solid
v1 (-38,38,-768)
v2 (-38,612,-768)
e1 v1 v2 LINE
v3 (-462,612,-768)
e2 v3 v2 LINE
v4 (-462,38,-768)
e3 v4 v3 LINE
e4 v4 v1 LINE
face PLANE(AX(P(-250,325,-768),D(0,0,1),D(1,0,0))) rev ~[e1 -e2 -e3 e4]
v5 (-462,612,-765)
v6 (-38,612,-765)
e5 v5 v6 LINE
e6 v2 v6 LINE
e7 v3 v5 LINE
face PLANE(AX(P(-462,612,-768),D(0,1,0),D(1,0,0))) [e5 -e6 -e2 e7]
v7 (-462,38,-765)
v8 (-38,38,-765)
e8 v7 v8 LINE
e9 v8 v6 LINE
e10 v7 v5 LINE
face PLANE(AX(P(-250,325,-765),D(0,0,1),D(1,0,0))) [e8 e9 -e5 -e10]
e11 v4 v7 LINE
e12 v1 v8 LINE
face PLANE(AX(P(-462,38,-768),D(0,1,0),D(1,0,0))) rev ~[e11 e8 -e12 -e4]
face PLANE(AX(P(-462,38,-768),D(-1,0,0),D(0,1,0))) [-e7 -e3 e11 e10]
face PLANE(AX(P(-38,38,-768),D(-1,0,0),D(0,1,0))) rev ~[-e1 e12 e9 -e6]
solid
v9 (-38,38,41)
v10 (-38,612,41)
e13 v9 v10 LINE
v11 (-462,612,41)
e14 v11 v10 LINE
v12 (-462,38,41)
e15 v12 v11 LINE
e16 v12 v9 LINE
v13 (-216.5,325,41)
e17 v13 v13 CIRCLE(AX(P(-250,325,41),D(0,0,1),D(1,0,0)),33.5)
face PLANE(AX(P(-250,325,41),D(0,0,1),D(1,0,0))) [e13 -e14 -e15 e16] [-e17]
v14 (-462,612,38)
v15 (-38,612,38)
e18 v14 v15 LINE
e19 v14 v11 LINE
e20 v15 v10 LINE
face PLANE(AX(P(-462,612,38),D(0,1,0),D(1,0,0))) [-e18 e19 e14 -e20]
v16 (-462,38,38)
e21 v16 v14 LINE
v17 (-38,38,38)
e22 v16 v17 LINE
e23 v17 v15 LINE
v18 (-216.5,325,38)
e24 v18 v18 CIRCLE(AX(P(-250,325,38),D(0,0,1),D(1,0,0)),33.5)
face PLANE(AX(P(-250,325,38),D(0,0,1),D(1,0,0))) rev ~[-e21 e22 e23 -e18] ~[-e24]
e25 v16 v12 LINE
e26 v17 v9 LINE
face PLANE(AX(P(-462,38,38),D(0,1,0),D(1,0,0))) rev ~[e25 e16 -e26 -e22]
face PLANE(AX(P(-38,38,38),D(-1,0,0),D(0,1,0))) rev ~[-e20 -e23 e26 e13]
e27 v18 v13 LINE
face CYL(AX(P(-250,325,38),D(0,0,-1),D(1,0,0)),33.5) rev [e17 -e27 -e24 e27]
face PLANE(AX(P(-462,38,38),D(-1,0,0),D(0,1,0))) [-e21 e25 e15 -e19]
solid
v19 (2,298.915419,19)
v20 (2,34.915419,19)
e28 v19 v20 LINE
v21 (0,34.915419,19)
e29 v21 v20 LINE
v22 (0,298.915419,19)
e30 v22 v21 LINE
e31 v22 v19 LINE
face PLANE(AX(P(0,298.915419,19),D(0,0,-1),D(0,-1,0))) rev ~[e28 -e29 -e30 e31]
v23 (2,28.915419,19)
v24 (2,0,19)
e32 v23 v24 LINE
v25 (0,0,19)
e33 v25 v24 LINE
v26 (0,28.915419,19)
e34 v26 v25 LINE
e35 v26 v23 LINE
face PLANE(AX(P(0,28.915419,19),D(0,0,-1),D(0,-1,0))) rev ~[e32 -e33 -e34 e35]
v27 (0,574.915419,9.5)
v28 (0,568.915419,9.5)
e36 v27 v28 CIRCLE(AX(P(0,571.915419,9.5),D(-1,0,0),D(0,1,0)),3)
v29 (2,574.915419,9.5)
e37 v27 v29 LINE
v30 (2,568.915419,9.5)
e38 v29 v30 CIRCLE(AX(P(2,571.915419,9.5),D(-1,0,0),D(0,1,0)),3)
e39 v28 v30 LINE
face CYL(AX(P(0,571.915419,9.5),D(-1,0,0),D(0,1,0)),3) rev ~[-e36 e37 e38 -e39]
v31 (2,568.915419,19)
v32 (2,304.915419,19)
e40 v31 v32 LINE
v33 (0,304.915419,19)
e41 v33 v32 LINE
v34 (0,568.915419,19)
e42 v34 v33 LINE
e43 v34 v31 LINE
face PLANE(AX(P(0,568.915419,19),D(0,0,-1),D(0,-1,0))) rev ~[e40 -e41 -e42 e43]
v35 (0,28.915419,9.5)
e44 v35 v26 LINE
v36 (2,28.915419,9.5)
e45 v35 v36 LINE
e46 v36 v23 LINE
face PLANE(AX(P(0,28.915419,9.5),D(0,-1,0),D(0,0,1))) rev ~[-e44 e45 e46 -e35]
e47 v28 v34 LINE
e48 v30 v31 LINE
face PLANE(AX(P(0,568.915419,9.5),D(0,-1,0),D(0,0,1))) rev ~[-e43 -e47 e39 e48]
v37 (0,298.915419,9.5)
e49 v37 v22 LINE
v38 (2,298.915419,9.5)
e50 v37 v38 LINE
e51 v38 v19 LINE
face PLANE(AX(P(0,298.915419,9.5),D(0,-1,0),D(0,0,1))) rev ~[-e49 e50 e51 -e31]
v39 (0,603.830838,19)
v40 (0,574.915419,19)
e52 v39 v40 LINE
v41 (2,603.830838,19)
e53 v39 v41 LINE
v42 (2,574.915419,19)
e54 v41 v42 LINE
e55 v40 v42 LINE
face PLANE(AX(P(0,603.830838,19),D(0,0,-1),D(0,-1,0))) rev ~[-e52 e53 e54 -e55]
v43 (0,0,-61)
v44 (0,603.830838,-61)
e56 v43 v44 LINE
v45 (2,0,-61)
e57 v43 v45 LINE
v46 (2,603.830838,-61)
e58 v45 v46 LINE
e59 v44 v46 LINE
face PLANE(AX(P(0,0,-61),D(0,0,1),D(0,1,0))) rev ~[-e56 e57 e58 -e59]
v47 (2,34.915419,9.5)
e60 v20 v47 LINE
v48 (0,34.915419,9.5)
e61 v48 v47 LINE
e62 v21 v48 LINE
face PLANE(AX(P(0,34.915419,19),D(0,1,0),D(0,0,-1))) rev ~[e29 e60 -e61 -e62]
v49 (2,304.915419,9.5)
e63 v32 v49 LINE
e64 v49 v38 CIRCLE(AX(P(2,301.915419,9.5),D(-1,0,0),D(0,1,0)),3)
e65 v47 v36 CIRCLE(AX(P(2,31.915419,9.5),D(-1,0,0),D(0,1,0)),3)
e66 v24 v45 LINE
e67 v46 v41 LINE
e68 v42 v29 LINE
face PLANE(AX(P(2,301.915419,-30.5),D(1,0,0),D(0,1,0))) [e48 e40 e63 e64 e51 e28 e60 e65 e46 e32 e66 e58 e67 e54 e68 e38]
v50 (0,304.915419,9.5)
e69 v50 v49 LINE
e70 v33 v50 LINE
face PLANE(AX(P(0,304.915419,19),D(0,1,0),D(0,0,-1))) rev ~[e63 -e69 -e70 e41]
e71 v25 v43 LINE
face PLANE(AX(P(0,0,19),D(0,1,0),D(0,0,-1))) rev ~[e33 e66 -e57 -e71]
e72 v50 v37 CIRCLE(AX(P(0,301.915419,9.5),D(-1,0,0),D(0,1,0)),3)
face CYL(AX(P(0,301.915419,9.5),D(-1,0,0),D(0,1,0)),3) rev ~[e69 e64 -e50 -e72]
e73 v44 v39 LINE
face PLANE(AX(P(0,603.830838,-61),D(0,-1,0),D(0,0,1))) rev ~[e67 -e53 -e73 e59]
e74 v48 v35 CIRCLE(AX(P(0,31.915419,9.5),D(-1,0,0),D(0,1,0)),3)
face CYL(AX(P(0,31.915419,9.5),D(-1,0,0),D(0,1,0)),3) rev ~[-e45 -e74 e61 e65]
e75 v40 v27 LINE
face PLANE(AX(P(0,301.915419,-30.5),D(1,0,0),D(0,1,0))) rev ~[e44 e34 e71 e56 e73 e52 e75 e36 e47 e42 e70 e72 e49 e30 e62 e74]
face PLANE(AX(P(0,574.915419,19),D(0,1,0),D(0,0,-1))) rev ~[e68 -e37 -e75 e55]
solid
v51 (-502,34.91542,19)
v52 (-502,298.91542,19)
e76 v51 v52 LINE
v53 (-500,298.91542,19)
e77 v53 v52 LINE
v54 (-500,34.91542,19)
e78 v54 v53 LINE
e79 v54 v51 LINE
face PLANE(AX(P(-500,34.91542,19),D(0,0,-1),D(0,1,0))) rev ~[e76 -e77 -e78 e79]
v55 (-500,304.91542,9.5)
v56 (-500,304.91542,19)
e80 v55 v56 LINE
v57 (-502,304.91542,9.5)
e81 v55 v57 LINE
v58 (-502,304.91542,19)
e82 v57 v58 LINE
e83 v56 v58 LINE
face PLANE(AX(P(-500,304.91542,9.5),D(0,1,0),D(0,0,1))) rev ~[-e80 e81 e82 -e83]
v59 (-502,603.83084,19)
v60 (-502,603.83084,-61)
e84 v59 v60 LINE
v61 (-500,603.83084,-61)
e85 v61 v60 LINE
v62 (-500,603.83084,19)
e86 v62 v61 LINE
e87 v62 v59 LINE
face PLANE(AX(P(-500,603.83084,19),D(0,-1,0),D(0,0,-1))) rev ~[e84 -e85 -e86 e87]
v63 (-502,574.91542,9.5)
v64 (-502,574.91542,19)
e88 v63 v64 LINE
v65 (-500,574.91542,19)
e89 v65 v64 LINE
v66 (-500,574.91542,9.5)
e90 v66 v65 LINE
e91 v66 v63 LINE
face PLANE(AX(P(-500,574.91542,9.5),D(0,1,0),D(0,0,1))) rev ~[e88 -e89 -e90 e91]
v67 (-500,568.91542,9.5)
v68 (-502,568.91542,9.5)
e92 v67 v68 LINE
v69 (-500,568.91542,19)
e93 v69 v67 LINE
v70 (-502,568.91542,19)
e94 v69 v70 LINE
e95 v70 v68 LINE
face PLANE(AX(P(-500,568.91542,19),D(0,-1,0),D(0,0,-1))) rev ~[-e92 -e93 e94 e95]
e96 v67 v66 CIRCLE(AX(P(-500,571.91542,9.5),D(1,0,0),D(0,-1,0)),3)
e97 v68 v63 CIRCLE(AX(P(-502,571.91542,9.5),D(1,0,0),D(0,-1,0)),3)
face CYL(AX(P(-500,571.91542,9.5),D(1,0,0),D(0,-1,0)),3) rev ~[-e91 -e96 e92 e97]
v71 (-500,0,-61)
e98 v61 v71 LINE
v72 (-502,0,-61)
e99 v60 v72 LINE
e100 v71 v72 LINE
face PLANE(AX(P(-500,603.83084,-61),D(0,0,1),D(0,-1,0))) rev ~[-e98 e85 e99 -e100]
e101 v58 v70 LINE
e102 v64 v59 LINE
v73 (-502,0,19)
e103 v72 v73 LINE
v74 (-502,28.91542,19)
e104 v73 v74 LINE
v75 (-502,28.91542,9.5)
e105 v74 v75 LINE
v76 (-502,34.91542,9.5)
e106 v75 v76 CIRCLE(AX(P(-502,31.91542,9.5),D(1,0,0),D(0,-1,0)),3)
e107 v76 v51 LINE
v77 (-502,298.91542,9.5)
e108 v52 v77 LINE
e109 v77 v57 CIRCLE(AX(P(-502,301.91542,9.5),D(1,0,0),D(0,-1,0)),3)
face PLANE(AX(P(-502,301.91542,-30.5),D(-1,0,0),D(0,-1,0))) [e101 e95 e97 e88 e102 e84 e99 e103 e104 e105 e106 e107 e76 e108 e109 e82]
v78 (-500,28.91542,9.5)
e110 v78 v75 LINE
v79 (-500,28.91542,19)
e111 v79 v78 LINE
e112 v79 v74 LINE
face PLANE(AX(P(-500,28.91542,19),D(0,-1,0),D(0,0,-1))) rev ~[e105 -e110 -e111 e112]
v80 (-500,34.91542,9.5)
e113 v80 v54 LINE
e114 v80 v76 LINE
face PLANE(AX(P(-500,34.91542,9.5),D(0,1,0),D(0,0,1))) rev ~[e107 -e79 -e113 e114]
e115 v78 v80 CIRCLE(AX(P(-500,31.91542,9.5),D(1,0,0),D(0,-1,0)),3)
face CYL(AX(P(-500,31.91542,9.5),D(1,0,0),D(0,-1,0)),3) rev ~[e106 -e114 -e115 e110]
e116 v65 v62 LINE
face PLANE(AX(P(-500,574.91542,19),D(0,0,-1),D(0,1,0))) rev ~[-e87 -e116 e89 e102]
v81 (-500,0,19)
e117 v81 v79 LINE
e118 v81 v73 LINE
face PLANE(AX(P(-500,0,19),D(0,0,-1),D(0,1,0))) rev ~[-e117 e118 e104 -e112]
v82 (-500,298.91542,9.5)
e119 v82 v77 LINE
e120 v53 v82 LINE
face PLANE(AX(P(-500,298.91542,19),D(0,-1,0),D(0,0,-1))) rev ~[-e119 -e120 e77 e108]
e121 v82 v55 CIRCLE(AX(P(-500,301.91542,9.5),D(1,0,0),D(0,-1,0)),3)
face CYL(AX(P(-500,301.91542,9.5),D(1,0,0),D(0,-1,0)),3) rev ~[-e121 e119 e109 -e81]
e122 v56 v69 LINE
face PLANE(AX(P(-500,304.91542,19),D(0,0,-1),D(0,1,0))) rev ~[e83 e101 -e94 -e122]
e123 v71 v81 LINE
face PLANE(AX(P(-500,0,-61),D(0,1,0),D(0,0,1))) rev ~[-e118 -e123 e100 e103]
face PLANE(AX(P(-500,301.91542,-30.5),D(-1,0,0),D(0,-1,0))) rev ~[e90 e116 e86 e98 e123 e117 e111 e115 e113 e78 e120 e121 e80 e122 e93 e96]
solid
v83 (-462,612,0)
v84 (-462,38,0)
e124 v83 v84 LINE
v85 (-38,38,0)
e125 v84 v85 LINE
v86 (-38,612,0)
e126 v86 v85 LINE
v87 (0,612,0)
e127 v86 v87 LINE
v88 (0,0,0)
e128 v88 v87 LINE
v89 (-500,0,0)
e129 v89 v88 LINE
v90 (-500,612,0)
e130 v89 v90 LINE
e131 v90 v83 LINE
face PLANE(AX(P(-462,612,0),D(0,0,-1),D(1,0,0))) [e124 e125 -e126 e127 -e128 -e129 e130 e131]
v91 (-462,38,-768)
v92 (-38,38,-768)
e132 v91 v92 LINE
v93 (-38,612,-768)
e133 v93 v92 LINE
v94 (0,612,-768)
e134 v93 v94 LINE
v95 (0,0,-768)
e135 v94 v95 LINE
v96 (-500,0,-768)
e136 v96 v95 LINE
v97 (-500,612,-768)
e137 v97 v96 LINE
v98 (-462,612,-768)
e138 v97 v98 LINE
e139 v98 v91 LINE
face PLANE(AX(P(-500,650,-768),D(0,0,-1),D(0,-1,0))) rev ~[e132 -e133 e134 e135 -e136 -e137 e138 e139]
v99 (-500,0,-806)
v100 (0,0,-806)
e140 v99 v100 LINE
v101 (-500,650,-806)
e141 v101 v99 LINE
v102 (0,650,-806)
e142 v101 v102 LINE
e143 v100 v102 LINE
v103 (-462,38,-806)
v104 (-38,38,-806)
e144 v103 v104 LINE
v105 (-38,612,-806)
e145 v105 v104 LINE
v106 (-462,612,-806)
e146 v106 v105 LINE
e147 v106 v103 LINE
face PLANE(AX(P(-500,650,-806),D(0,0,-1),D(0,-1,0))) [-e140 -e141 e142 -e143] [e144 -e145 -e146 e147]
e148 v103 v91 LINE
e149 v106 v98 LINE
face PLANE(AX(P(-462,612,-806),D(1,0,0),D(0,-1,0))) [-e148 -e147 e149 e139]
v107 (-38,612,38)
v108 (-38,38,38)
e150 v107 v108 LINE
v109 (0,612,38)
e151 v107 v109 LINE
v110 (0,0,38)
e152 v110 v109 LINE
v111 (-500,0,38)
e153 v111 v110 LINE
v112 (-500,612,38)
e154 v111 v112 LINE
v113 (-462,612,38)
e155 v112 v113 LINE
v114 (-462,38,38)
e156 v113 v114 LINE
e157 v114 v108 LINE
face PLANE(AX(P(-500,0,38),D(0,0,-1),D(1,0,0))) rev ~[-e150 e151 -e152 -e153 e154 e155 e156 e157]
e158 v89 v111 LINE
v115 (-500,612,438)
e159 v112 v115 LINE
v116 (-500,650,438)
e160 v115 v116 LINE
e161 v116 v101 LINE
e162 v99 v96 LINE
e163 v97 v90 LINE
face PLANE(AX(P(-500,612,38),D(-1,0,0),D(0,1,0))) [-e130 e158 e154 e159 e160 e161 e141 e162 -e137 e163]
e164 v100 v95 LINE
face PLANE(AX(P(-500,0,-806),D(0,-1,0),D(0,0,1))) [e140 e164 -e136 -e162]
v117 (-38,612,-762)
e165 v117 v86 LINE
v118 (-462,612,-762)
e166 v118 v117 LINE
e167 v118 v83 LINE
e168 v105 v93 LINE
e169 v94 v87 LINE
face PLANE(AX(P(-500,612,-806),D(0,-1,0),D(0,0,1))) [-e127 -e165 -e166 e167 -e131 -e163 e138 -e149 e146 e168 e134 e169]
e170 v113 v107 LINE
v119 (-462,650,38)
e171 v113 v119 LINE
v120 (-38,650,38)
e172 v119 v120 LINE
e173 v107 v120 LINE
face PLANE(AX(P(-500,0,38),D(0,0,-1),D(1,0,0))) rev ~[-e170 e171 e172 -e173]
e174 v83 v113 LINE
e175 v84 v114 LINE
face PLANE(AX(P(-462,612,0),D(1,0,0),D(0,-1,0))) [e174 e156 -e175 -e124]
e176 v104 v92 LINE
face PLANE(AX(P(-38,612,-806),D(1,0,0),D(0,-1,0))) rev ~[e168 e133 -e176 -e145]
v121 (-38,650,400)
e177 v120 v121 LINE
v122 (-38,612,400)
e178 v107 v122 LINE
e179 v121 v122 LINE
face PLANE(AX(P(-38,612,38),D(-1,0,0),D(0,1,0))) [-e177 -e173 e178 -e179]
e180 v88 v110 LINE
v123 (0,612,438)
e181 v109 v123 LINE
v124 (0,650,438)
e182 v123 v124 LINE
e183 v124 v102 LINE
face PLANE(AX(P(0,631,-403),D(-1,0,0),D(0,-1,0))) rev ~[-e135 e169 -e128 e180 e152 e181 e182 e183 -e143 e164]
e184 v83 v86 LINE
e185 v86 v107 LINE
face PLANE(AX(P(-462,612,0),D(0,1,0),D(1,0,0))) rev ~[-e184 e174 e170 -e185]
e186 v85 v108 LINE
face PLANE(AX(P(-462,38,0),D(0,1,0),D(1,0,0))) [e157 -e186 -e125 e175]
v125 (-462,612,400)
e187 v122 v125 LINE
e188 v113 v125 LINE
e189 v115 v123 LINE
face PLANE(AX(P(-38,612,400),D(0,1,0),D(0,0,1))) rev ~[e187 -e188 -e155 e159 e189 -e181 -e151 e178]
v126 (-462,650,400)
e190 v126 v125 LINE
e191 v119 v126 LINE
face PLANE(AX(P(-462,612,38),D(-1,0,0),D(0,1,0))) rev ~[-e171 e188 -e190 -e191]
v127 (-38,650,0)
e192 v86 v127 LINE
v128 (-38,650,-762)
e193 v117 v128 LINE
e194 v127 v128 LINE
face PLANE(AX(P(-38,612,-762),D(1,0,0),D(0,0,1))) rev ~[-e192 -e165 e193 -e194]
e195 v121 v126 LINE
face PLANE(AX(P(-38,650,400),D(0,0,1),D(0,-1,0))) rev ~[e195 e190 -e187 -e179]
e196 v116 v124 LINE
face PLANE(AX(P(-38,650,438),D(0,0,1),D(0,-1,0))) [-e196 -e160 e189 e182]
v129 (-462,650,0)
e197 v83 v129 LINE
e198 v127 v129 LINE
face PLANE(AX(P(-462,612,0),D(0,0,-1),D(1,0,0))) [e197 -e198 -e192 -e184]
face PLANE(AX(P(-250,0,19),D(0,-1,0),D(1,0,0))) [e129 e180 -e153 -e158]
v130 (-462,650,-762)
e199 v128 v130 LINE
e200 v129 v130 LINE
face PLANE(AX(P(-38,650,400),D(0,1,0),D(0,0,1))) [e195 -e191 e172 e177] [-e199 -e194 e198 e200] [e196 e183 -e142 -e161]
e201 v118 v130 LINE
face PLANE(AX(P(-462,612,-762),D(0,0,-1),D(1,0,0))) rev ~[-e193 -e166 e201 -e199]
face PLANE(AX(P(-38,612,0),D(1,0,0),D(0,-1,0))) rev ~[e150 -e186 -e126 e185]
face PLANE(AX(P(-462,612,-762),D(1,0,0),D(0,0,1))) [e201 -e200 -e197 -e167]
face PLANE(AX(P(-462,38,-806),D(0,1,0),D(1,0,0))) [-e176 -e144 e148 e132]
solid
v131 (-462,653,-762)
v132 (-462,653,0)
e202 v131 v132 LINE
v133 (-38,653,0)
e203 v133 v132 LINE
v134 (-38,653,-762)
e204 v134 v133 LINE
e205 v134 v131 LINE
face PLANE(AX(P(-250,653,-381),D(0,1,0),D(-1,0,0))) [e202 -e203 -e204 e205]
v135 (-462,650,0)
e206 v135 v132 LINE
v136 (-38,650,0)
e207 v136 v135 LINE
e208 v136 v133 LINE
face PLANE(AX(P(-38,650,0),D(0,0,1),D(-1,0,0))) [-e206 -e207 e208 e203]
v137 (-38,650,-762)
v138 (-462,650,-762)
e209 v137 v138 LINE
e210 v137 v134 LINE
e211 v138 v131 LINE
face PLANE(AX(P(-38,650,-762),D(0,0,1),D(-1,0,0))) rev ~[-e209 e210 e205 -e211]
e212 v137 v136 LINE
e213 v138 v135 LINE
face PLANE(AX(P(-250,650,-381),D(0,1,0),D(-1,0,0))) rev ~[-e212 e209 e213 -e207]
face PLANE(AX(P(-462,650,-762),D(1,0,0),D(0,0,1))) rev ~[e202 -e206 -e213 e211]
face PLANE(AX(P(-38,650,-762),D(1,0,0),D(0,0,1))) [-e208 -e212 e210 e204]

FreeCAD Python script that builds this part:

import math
import FreeCAD as App
import Part
import Sketcher

doc = App.newDocument("Part")
body = doc.addObject("PartDesign::Body", "Body")

# Sketch on XZ plane
sketch1 = body.newObject("Sketcher::SketchObject", "Sketch")
sketch1.AttachmentSupport = (doc.getObject("XZ_Plane"), [""])
sketch1.MapMode = "FlatFace"
sketch1.addGeometry([
    Part.LineSegment(App.Vector(-500, 38, 0), App.Vector(-500, 0, 0)),
    Part.LineSegment(App.Vector(-500, 0, 0), App.Vector(0, 0, 0)),
    Part.LineSegment(App.Vector(0, 0, 0), App.Vector(0, 38, 0)),
    Part.LineSegment(App.Vector(0, 38, 0), App.Vector(-500, 38, 0)),
], False)
sketch1.addConstraint([
    Sketcher.Constraint("Coincident", 0, 2, 1, 1),
    Sketcher.Constraint("Coincident", 1, 2, 2, 1),
    Sketcher.Constraint("Coincident", 2, 2, 3, 1),
    Sketcher.Constraint("Coincident", 3, 2, 0, 1),
    Sketcher.Constraint("Vertical", 0),
    Sketcher.Constraint("Horizontal", 1),
    Sketcher.Constraint("Vertical", 2),
    Sketcher.Constraint("Horizontal", 3),
    Sketcher.Constraint("Coincident", 1, 2, -1, 1),
    Sketcher.Constraint("DistanceX", 1, 1, 1, 2, 500.0),
    Sketcher.Constraint("DistanceY", 0, 2, 0, 1, 38.0),
])
pad1 = body.newObject("PartDesign::Pad", "Pad")
pad1.Profile = sketch1
pad1.Length = 650
pad1.Reversed = True

# Sketch on YZ plane
sketch2 = body.newObject("Sketcher::SketchObject", "Sketch001")
sketch2.AttachmentSupport = (doc.getObject("YZ_Plane"), [""])
sketch2.MapMode = "FlatFace"
sketch2.AttachmentOffset = App.Placement(App.Vector(0, 0, -500), App.Rotation())
sketch2.addGeometry([
    Part.LineSegment(App.Vector(650, 0, 0), App.Vector(650, -806, 0)),
    Part.LineSegment(App.Vector(650, -806, 0), App.Vector(612, -806, 0)),
    Part.LineSegment(App.Vector(612, -806, 0), App.Vector(612, 0, 0)),
    Part.LineSegment(App.Vector(612, 0, 0), App.Vector(650, 0, 0)),
], False)
sketch2.addConstraint([
    Sketcher.Constraint("Coincident", 0, 2, 1, 1),
    Sketcher.Constraint("Coincident", 1, 2, 2, 1),
    Sketcher.Constraint("Coincident", 2, 2, 3, 1),
    Sketcher.Constraint("Coincident", 3, 2, 0, 1),
    Sketcher.Constraint("Vertical", 0),
    Sketcher.Constraint("Horizontal", 1),
    Sketcher.Constraint("Vertical", 2),
    Sketcher.Constraint("Horizontal", 3),
    Sketcher.Constraint("PointOnObject", 2, 2, -1),
    Sketcher.Constraint("DistanceX", 1, 2, 1, 1, 38.0),
    Sketcher.Constraint("DistanceY", 0, 2, 0, 1, 806.0),
    Sketcher.Constraint("DistanceX", -1, 1, 0, 2, 650.0),
])
pad2 = body.newObject("PartDesign::Pad", "Pad001")
pad2.Profile = sketch2
pad2.Length = 500

# Sketch on YZ plane
sketch3 = body.newObject("Sketcher::SketchObject", "Sketch002")
sketch3.AttachmentSupport = (doc.getObject("YZ_Plane"), [""])
sketch3.MapMode = "FlatFace"
sketch3.AttachmentOffset = App.Placement(App.Vector(0, 0, -500), App.Rotation())
sketch3.addGeometry([
    Part.LineSegment(App.Vector(650, -768, 0), App.Vector(650, -806, 0)),
    Part.LineSegment(App.Vector(650, -806, 0), App.Vector(0, -806, 0)),
    Part.LineSegment(App.Vector(0, -806, 0), App.Vector(0, -768, 0)),
    Part.LineSegment(App.Vector(0, -768, 0), App.Vector(650, -768, 0)),
], False)
sketch3.addConstraint([
    Sketcher.Constraint("Coincident", 0, 2, 1, 1),
    Sketcher.Constraint("Coincident", 1, 2, 2, 1),
    Sketcher.Constraint("Coincident", 2, 2, 3, 1),
    Sketcher.Constraint("Coincident", 3, 2, 0, 1),
    Sketcher.Constraint("Vertical", 0),
    Sketcher.Constraint("Horizontal", 1),
    Sketcher.Constraint("Vertical", 2),
    Sketcher.Constraint("Horizontal", 3),
    Sketcher.Constraint("PointOnObject", 1, 2, -2),
    Sketcher.Constraint("DistanceX", 1, 2, 1, 1, 650.0),
    Sketcher.Constraint("DistanceY", 0, 2, 0, 1, 38.0),
    Sketcher.Constraint("DistanceY", 0, 2, -1, 1, 806.0),
])
pad3 = body.newObject("PartDesign::Pad", "Pad002")
pad3.Profile = sketch3
pad3.Length = 500

# Sketch on XY plane
sketch4 = body.newObject("Sketcher::SketchObject", "Sketch003")
sketch4.AttachmentSupport = (doc.getObject("XY_Plane"), [""])
sketch4.MapMode = "FlatFace"
sketch4.AttachmentOffset = App.Placement(App.Vector(0, 0, 38), App.Rotation())
sketch4.addGeometry([
    Part.LineSegment(App.Vector(-500, 650, 0), App.Vector(-500, 612, 0)),  # 0
    Part.LineSegment(App.Vector(-500, 612, 0), App.Vector(-462, 612, 0)),  # 1
    Part.LineSegment(App.Vector(-462, 612, 0), App.Vector(-462, 650, 0)),  # 2
    Part.LineSegment(App.Vector(-462, 650, 0), App.Vector(-500, 650, 0)),  # 3
    Part.LineSegment(App.Vector(-38, 650, 0), App.Vector(-38, 612, 0)),  # 4
    Part.LineSegment(App.Vector(-38, 612, 0), App.Vector(0, 612, 0)),  # 5
    Part.LineSegment(App.Vector(0, 612, 0), App.Vector(0, 650, 0)),  # 6
    Part.LineSegment(App.Vector(0, 650, 0), App.Vector(-38, 650, 0)),  # 7
], False)
sketch4.addConstraint([
    Sketcher.Constraint("Coincident", 0, 2, 1, 1),
    Sketcher.Constraint("Coincident", 1, 2, 2, 1),
    Sketcher.Constraint("Coincident", 2, 2, 3, 1),
    Sketcher.Constraint("Coincident", 3, 2, 0, 1),
    Sketcher.Constraint("Coincident", 4, 2, 5, 1),
    Sketcher.Constraint("Coincident", 5, 2, 6, 1),
    Sketcher.Constraint("Coincident", 6, 2, 7, 1),
    Sketcher.Constraint("Coincident", 7, 2, 4, 1),
    Sketcher.Constraint("Vertical", 0),
    Sketcher.Constraint("Horizontal", 1),
    Sketcher.Constraint("Vertical", 2),
    Sketcher.Constraint("Horizontal", 3),
    Sketcher.Constraint("Vertical", 4),
    Sketcher.Constraint("Horizontal", 5),
    Sketcher.Constraint("Vertical", 6),
    Sketcher.Constraint("Horizontal", 7),
    Sketcher.Constraint("PointOnObject", 5, 2, -2),
    Sketcher.Constraint("Horizontal", 1, 2, 4, 2),
    Sketcher.Constraint("Horizontal", 3, 2, 6, 2),
    Sketcher.Constraint("Equal", 3, 5),
    Sketcher.Constraint("Equal", 7, 0),
    Sketcher.Constraint("DistanceX", 1, 1, 1, 2, 38.0),
    Sketcher.Constraint("DistanceX", 0, 2, -1, 1, 500.0),
    Sketcher.Constraint("DistanceY", -1, 1, 0, 2, 612.0),
])
pad4 = body.newObject("PartDesign::Pad", "Pad003")
pad4.Profile = sketch4
pad4.Length = 400

# Sketch on YZ plane
sketch5 = body.newObject("Sketcher::SketchObject", "Sketch004")
sketch5.AttachmentSupport = (doc.getObject("YZ_Plane"), [""])
sketch5.MapMode = "FlatFace"
sketch5.AttachmentOffset = App.Placement(App.Vector(0, 0, -38), App.Rotation())
sketch5.addGeometry([
    Part.LineSegment(App.Vector(650, 438, 0), App.Vector(650, 400, 0)),
    Part.LineSegment(App.Vector(650, 400, 0), App.Vector(612, 400, 0)),
    Part.LineSegment(App.Vector(612, 400, 0), App.Vector(612, 438, 0)),
    Part.LineSegment(App.Vector(612, 438, 0), App.Vector(650, 438, 0)),
], False)
sketch5.addConstraint([
    Sketcher.Constraint("Coincident", 0, 2, 1, 1),
    Sketcher.Constraint("Coincident", 1, 2, 2, 1),
    Sketcher.Constraint("Coincident", 2, 2, 3, 1),
    Sketcher.Constraint("Coincident", 3, 2, 0, 1),
    Sketcher.Constraint("Vertical", 0),
    Sketcher.Constraint("Horizontal", 1),
    Sketcher.Constraint("Vertical", 2),
    Sketcher.Constraint("Horizontal", 3),
    Sketcher.Constraint("Equal", 3, 0),
    Sketcher.Constraint("DistanceX", 1, 2, 1, 1, 38.0),
    Sketcher.Constraint("DistanceX", -1, 1, 0, 2, 650.0),
    Sketcher.Constraint("DistanceY", -1, 1, 0, 2, 400.0),
])
pad5 = body.newObject("PartDesign::Pad", "Pad004")
pad5.Profile = sketch5
pad5.Length = 424
pad5.Reversed = True

# Sketch on XZ plane
sketch6 = body.newObject("Sketcher::SketchObject", "Sketch005")
sketch6.AttachmentSupport = (doc.getObject("XZ_Plane"), [""])
sketch6.MapMode = "FlatFace"
sketch6.AttachmentOffset = App.Placement(App.Vector(0, 0, -612), App.Rotation())
sketch6.addGeometry([
    Part.LineSegment(App.Vector(-462, 0, 0), App.Vector(-462, -762, 0)),
    Part.LineSegment(App.Vector(-462, -762, 0), App.Vector(-38, -762, 0)),
    Part.LineSegment(App.Vector(-38, -762, 0), App.Vector(-38, 0, 0)),
    Part.LineSegment(App.Vector(-38, 0, 0), App.Vector(-462, 0, 0)),
], False)
sketch6.addConstraint([
    Sketcher.Constraint("Coincident", 0, 2, 1, 1),
    Sketcher.Constraint("Coincident", 1, 2, 2, 1),
    Sketcher.Constraint("Coincident", 2, 2, 3, 1),
    Sketcher.Constraint("Coincident", 3, 2, 0, 1),
    Sketcher.Constraint("Vertical", 0),
    Sketcher.Constraint("Horizontal", 1),
    Sketcher.Constraint("Vertical", 2),
    Sketcher.Constraint("Horizontal", 3),
    Sketcher.Constraint("PointOnObject", 2, 2, -1),
    Sketcher.Constraint("DistanceX", 1, 1, 1, 2, 424.0),
    Sketcher.Constraint("DistanceY", 0, 2, 0, 1, 762.0),
    Sketcher.Constraint("DistanceX", 0, 2, -1, 1, 462.0),
])
pocket1 = body.newObject("PartDesign::Pocket", "Pocket")
pocket1.Profile = sketch6
pocket1.Length = 41

# Sketch on XY plane
sketch7 = body.newObject("Sketcher::SketchObject", "Sketch006")
sketch7.AttachmentSupport = (doc.getObject("XY_Plane"), [""])
sketch7.MapMode = "FlatFace"
sketch7.addGeometry([
    Part.LineSegment(App.Vector(-462, 38, 0), App.Vector(-462, 612, 0)),
    Part.LineSegment(App.Vector(-462, 612, 0), App.Vector(-38, 612, 0)),
    Part.LineSegment(App.Vector(-38, 612, 0), App.Vector(-38, 38, 0)),
    Part.LineSegment(App.Vector(-38, 38, 0), App.Vector(-462, 38, 0)),
], False)
sketch7.addConstraint([
    Sketcher.Constraint("Coincident", 0, 2, 1, 1),
    Sketcher.Constraint("Coincident", 1, 2, 2, 1),
    Sketcher.Constraint("Coincident", 2, 2, 3, 1),
    Sketcher.Constraint("Coincident", 3, 2, 0, 1),
    Sketcher.Constraint("Vertical", 0),
    Sketcher.Constraint("Horizontal", 1),
    Sketcher.Constraint("Vertical", 2),
    Sketcher.Constraint("Horizontal", 3),
    Sketcher.Constraint("DistanceX", 1, 1, 1, 2, 424.0),
    Sketcher.Constraint("DistanceY", 0, 1, 0, 2, 574.0),
    Sketcher.Constraint("DistanceX", 0, 2, -1, 1, 462.0),
    Sketcher.Constraint("DistanceY", -1, 1, 0, 2, 612.0),
])
pocket2 = body.newObject("PartDesign::Pocket", "Pocket001")
pocket2.Profile = sketch7
pocket2.Length = 38
pocket2.Reversed = True

# Sketch on XY plane
sketch8 = body.newObject("Sketcher::SketchObject", "Sketch007")
sketch8.AttachmentSupport = (doc.getObject("XY_Plane"), [""])
sketch8.MapMode = "FlatFace"
sketch8.AttachmentOffset = App.Placement(App.Vector(0, 0, -806), App.Rotation())
sketch8.addGeometry([
    Part.LineSegment(App.Vector(-462, 38, 0), App.Vector(-462, 612, 0)),
    Part.LineSegment(App.Vector(-462, 612, 0), App.Vector(-38, 612, 0)),
    Part.LineSegment(App.Vector(-38, 612, 0), App.Vector(-38, 38, 0)),
    Part.LineSegment(App.Vector(-38, 38, 0), App.Vector(-462, 38, 0)),
], False)
sketch8.addConstraint([
    Sketcher.Constraint("Coincident", 0, 2, 1, 1),
    Sketcher.Constraint("Coincident", 1, 2, 2, 1),
    Sketcher.Constraint("Coincident", 2, 2, 3, 1),
    Sketcher.Constraint("Coincident", 3, 2, 0, 1),
    Sketcher.Constraint("Vertical", 0),
    Sketcher.Constraint("Horizontal", 1),
    Sketcher.Constraint("Vertical", 2),
    Sketcher.Constraint("Horizontal", 3),
    Sketcher.Constraint("DistanceX", 1, 1, 1, 2, 424.0),
    Sketcher.Constraint("DistanceY", 0, 1, 0, 2, 574.0),
    Sketcher.Constraint("DistanceX", 0, 2, -1, 1, 462.0),
    Sketcher.Constraint("DistanceY", -1, 1, 0, 2, 612.0),
])
pocket3 = body.newObject("PartDesign::Pocket", "Pocket002")
pocket3.Profile = sketch8
pocket3.Length = 38
pocket3.Reversed = True
body2 = doc.addObject("PartDesign::Body", "Body001")

# Sketch on XZ plane
sketch9 = body2.newObject("Sketcher::SketchObject", "Sketch008")
sketch9.AttachmentSupport = (doc.getObject("XZ_Plane001"), [""])
sketch9.MapMode = "FlatFace"
sketch9.AttachmentOffset = App.Placement(App.Vector(0, 0, -650), App.Rotation())
sketch9.addGeometry([
    Part.LineSegment(App.Vector(-38, 0, 0), App.Vector(-38, -762, 0)),
    Part.LineSegment(App.Vector(-38, -762, 0), App.Vector(-462, -762, 0)),
    Part.LineSegment(App.Vector(-462, -762, 0), App.Vector(-462, 0, 0)),
    Part.LineSegment(App.Vector(-462, 0, 0), App.Vector(-38, 0, 0)),
], False)
sketch9.addConstraint([
    Sketcher.Constraint("Coincident", 0, 2, 1, 1),
    Sketcher.Constraint("Coincident", 1, 2, 2, 1),
    Sketcher.Constraint("Coincident", 2, 2, 3, 1),
    Sketcher.Constraint("Coincident", 3, 2, 0, 1),
    Sketcher.Constraint("Vertical", 0),
    Sketcher.Constraint("Horizontal", 1),
    Sketcher.Constraint("Vertical", 2),
    Sketcher.Constraint("Horizontal", 3),
    Sketcher.Constraint("PointOnObject", 2, 2, -1),
    Sketcher.Constraint("DistanceX", 1, 2, 1, 1, 424.0),
    Sketcher.Constraint("DistanceY", 0, 2, 0, 1, 762.0),
    Sketcher.Constraint("DistanceX", 0, 2, -1, 1, 38.0),
])
pad6 = body2.newObject("PartDesign::Pad", "Pad005")
pad6.Profile = sketch9
pad6.Length = 3
pad6.Reversed = True
body3 = doc.addObject("PartDesign::Body", "Body002")

# Sketch on XY plane
sketch10 = body3.newObject("Sketcher::SketchObject", "Sketch009")
sketch10.AttachmentSupport = (doc.getObject("XY_Plane002"), [""])
sketch10.MapMode = "FlatFace"
sketch10.AttachmentOffset = App.Placement(App.Vector(0, 0, 38), App.Rotation())
sketch10.addGeometry([
    Part.LineSegment(App.Vector(-462, 612, 0), App.Vector(-462, 38, 0)),  # 0
    Part.LineSegment(App.Vector(-462, 38, 0), App.Vector(-38, 38, 0)),  # 1
    Part.LineSegment(App.Vector(-38, 38, 0), App.Vector(-38, 612, 0)),  # 2
    Part.LineSegment(App.Vector(-38, 612, 0), App.Vector(-462, 612, 0)),  # 3
    Part.Circle(App.Vector(-250, 325, 0), App.Vector(0, 0, 1), 34),  # 4
], False)
sketch10.addConstraint([
    Sketcher.Constraint("Coincident", 0, 2, 1, 1),
    Sketcher.Constraint("Coincident", 1, 2, 2, 1),
    Sketcher.Constraint("Coincident", 2, 2, 3, 1),
    Sketcher.Constraint("Coincident", 3, 2, 0, 1),
    Sketcher.Constraint("Vertical", 0),
    Sketcher.Constraint("Horizontal", 1),
    Sketcher.Constraint("Vertical", 2),
    Sketcher.Constraint("Horizontal", 3),
    Sketcher.Constraint("Diameter", 4, 67.0),
    Sketcher.Constraint("DistanceX", 1, 1, 1, 2, 424.0),
    Sketcher.Constraint("DistanceY", 0, 2, 0, 1, 574.0),
    Sketcher.Constraint("DistanceX", 4, 3, -1, 1, 250.0),
    Sketcher.Constraint("DistanceY", -1, 1, 4, 3, 325.0),
    Sketcher.Constraint("DistanceX", 0, 2, -1, 1, 462.0),
    Sketcher.Constraint("DistanceY", -1, 1, 0, 2, 38.0),
])
pad7 = body3.newObject("PartDesign::Pad", "Pad006")
pad7.Profile = sketch10
pad7.Length = 3
body4 = doc.addObject("PartDesign::Body", "Body003")

# Sketch on XY plane
sketch11 = body4.newObject("Sketcher::SketchObject", "Sketch010")
sketch11.AttachmentSupport = (doc.getObject("XY_Plane003"), [""])
sketch11.MapMode = "FlatFace"
sketch11.AttachmentOffset = App.Placement(App.Vector(0, 0, -768), App.Rotation())
sketch11.addGeometry([
    Part.LineSegment(App.Vector(-462, 612, 0), App.Vector(-462, 38, 0)),
    Part.LineSegment(App.Vector(-462, 38, 0), App.Vector(-38, 38, 0)),
    Part.LineSegment(App.Vector(-38, 38, 0), App.Vector(-38, 612, 0)),
    Part.LineSegment(App.Vector(-38, 612, 0), App.Vector(-462, 612, 0)),
], False)
sketch11.addConstraint([
    Sketcher.Constraint("Coincident", 0, 2, 1, 1),
    Sketcher.Constraint("Coincident", 1, 2, 2, 1),
    Sketcher.Constraint("Coincident", 2, 2, 3, 1),
    Sketcher.Constraint("Coincident", 3, 2, 0, 1),
    Sketcher.Constraint("Vertical", 0),
    Sketcher.Constraint("Horizontal", 1),
    Sketcher.Constraint("Vertical", 2),
    Sketcher.Constraint("Horizontal", 3),
    Sketcher.Constraint("DistanceX", 1, 1, 1, 2, 424.0),
    Sketcher.Constraint("DistanceY", 0, 2, 0, 1, 574.0),
    Sketcher.Constraint("DistanceX", 0, 2, -1, 1, 462.0),
    Sketcher.Constraint("DistanceY", -1, 1, 0, 2, 38.0),
])
pad8 = body4.newObject("PartDesign::Pad", "Pad007")
pad8.Profile = sketch11
pad8.Length = 3
body5 = doc.addObject("PartDesign::Body", "Body004")

# Sketch on YZ plane
sketch12 = body5.newObject("Sketcher::SketchObject", "Sketch011")
sketch12.AttachmentSupport = (doc.getObject("YZ_Plane004"), [""])
sketch12.MapMode = "FlatFace"
sketch12.addGeometry([
    Part.LineSegment(App.Vector(0, -61, 0), App.Vector(603.8, -61, 0)),  # 0
    Part.LineSegment(App.Vector(603.8, -61, 0), App.Vector(603.8, 19, 0)),  # 1
    Part.LineSegment(App.Vector(603.8, 19, 0), App.Vector(574.9, 19, 0)),  # 2
    Part.LineSegment(App.Vector(574.9, 19, 0), App.Vector(574.9, 9.5, 0)),  # 3
    Part.ArcOfCircle(Part.Circle(App.Vector(571.9, 9.5, 0), App.Vector(0, 0, 1), 3), math.radians(180), math.radians(360)),  # 4
    Part.LineSegment(App.Vector(568.9, 9.5, 0), App.Vector(568.9, 19, 0)),  # 5
    Part.LineSegment(App.Vector(568.9, 19, 0), App.Vector(304.9, 19, 0)),  # 6
    Part.LineSegment(App.Vector(304.9, 19, 0), App.Vector(304.9, 9.5, 0)),  # 7
    Part.ArcOfCircle(Part.Circle(App.Vector(301.9, 9.5, 0), App.Vector(0, 0, 1), 3), math.radians(180), math.radians(360)),  # 8
    Part.LineSegment(App.Vector(298.9, 9.5, 0), App.Vector(298.9, 19, 0)),  # 9
    Part.LineSegment(App.Vector(298.9, 19, 0), App.Vector(34.9, 19, 0)),  # 10
    Part.LineSegment(App.Vector(34.9, 19, 0), App.Vector(34.9, 9.5, 0)),  # 11
    Part.ArcOfCircle(Part.Circle(App.Vector(31.9, 9.5, 0), App.Vector(0, 0, 1), 3), math.radians(180), math.radians(360)),  # 12
    Part.LineSegment(App.Vector(28.9, 9.5, 0), App.Vector(28.9, 19, 0)),  # 13
    Part.LineSegment(App.Vector(28.9, 19, 0), App.Vector(0, 19, 0)),  # 14
    Part.LineSegment(App.Vector(0, 19, 0), App.Vector(0, -61, 0)),  # 15
], False)
sketch12.addConstraint([
    Sketcher.Constraint("Coincident", 0, 2, 1, 1),
    Sketcher.Constraint("Coincident", 1, 2, 2, 1),
    Sketcher.Constraint("Coincident", 2, 2, 3, 1),
    Sketcher.Constraint("Tangent", 3, 2, 4, 2),
    Sketcher.Constraint("Tangent", 4, 1, 5, 1),
    Sketcher.Constraint("Coincident", 5, 2, 6, 1),
    Sketcher.Constraint("Coincident", 6, 2, 7, 1),
    Sketcher.Constraint("Tangent", 7, 2, 8, 2),
    Sketcher.Constraint("Tangent", 8, 1, 9, 1),
    Sketcher.Constraint("Coincident", 9, 2, 10, 1),
    Sketcher.Constraint("Coincident", 10, 2, 11, 1),
    Sketcher.Constraint("Tangent", 11, 2, 12, 2),
    Sketcher.Constraint("Tangent", 12, 1, 13, 1),
    Sketcher.Constraint("Coincident", 13, 2, 14, 1),
    Sketcher.Constraint("Coincident", 14, 2, 15, 1),
    Sketcher.Constraint("Coincident", 15, 2, 0, 1),
    Sketcher.Constraint("Horizontal", 0),
    Sketcher.Constraint("Vertical", 1),
    Sketcher.Constraint("Horizontal", 2),
    Sketcher.Constraint("Vertical", 3),
    Sketcher.Constraint("Vertical", 5),
    Sketcher.Constraint("Horizontal", 6),
    Sketcher.Constraint("Vertical", 7),
    Sketcher.Constraint("Vertical", 9),
    Sketcher.Constraint("Horizontal", 10),
    Sketcher.Constraint("Vertical", 11),
    Sketcher.Constraint("Vertical", 13),
    Sketcher.Constraint("Horizontal", 14),
    Sketcher.Constraint("Vertical", 15),
    Sketcher.Constraint("Equal", 4, 8),
    Sketcher.Constraint("Equal", 8, 12),
    Sketcher.Constraint("PointOnObject", 14, 2, -2),
    Sketcher.Constraint("Horizontal", 4, 3, 8, 3),
    Sketcher.Constraint("Horizontal", 8, 3, 12, 3),
    Sketcher.Constraint("Horizontal", 2, 2, 5, 2),
    Sketcher.Constraint("Horizontal", 6, 2, 9, 2),
    Sketcher.Constraint("Horizontal", 10, 2, 13, 2),
    Sketcher.Constraint("Equal", 6, 10),
    Sketcher.Constraint("Equal", 2, 14),
    Sketcher.Constraint("Radius", 4, 3.0),
    Sketcher.Constraint("DistanceX", 6, 2, 6, 1, 264.0),
    Sketcher.Constraint("DistanceY", 1, 1, 1, 2, 80.0),
    Sketcher.Constraint("DistanceY", 3, 2, 3, 1, 9.5),
    Sketcher.Constraint("DistanceY", 0, 2, -1, 1, 61.0),
    Sketcher.Constraint("DistanceX", 2, 2, 2, 1, 28.915419),
])
pad9 = body5.newObject("PartDesign::Pad", "Pad008")
pad9.Profile = sketch12
pad9.Length = 2
body6 = doc.addObject("PartDesign::Body", "Body005")

# Sketch on YZ plane
sketch13 = body6.newObject("Sketcher::SketchObject", "Sketch012")
sketch13.AttachmentSupport = (doc.getObject("YZ_Plane005"), [""])
sketch13.MapMode = "FlatFace"
sketch13.AttachmentOffset = App.Placement(App.Vector(0, 0, -500), App.Rotation())
sketch13.addGeometry([
    Part.LineSegment(App.Vector(603.8, -61, 0), App.Vector(0, -61, 0)),  # 0
    Part.LineSegment(App.Vector(0, -61, 0), App.Vector(0, 19, 0)),  # 1
    Part.LineSegment(App.Vector(0, 19, 0), App.Vector(28.9, 19, 0)),  # 2
    Part.LineSegment(App.Vector(28.9, 19, 0), App.Vector(28.9, 9.5, 0)),  # 3
    Part.ArcOfCircle(Part.Circle(App.Vector(31.9, 9.5, 0), App.Vector(0, 0, 1), 3), math.radians(180), math.radians(360)),  # 4
    Part.LineSegment(App.Vector(34.9, 9.5, 0), App.Vector(34.9, 19, 0)),  # 5
    Part.LineSegment(App.Vector(34.9, 19, 0), App.Vector(298.9, 19, 0)),  # 6
    Part.LineSegment(App.Vector(298.9, 19, 0), App.Vector(298.9, 9.5, 0)),  # 7
    Part.ArcOfCircle(Part.Circle(App.Vector(301.9, 9.5, 0), App.Vector(0, 0, 1), 3), math.radians(180), math.radians(360)),  # 8
    Part.LineSegment(App.Vector(304.9, 9.5, 0), App.Vector(304.9, 19, 0)),  # 9
    Part.LineSegment(App.Vector(304.9, 19, 0), App.Vector(568.9, 19, 0)),  # 10
    Part.LineSegment(App.Vector(568.9, 19, 0), App.Vector(568.9, 9.5, 0)),  # 11
    Part.ArcOfCircle(Part.Circle(App.Vector(571.9, 9.5, 0), App.Vector(0, 0, 1), 3), math.radians(180), math.radians(360)),  # 12
    Part.LineSegment(App.Vector(574.9, 9.5, 0), App.Vector(574.9, 19, 0)),  # 13
    Part.LineSegment(App.Vector(574.9, 19, 0), App.Vector(603.8, 19, 0)),  # 14
    Part.LineSegment(App.Vector(603.8, 19, 0), App.Vector(603.8, -61, 0)),  # 15
], False)
sketch13.addConstraint([
    Sketcher.Constraint("Coincident", 0, 2, 1, 1),
    Sketcher.Constraint("Coincident", 1, 2, 2, 1),
    Sketcher.Constraint("Coincident", 2, 2, 3, 1),
    Sketcher.Constraint("Tangent", 3, 2, 4, 1),
    Sketcher.Constraint("Tangent", 4, 2, 5, 1),
    Sketcher.Constraint("Coincident", 5, 2, 6, 1),
    Sketcher.Constraint("Coincident", 6, 2, 7, 1),
    Sketcher.Constraint("Tangent", 7, 2, 8, 1),
    Sketcher.Constraint("Tangent", 8, 2, 9, 1),
    Sketcher.Constraint("Coincident", 9, 2, 10, 1),
    Sketcher.Constraint("Coincident", 10, 2, 11, 1),
    Sketcher.Constraint("Tangent", 11, 2, 12, 1),
    Sketcher.Constraint("Tangent", 12, 2, 13, 1),
    Sketcher.Constraint("Coincident", 13, 2, 14, 1),
    Sketcher.Constraint("Coincident", 14, 2, 15, 1),
    Sketcher.Constraint("Coincident", 15, 2, 0, 1),
    Sketcher.Constraint("Horizontal", 0),
    Sketcher.Constraint("Vertical", 1),
    Sketcher.Constraint("Horizontal", 2),
    Sketcher.Constraint("Vertical", 3),
    Sketcher.Constraint("Vertical", 5),
    Sketcher.Constraint("Horizontal", 6),
    Sketcher.Constraint("Vertical", 7),
    Sketcher.Constraint("Vertical", 9),
    Sketcher.Constraint("Horizontal", 10),
    Sketcher.Constraint("Vertical", 11),
    Sketcher.Constraint("Vertical", 13),
    Sketcher.Constraint("Horizontal", 14),
    Sketcher.Constraint("Vertical", 15),
    Sketcher.Constraint("Equal", 4, 8),
    Sketcher.Constraint("Equal", 8, 12),
    Sketcher.Constraint("PointOnObject", 0, 2, -2),
    Sketcher.Constraint("Horizontal", 4, 3, 8, 3),
    Sketcher.Constraint("Horizontal", 8, 3, 12, 3),
    Sketcher.Constraint("Horizontal", 2, 2, 5, 2),
    Sketcher.Constraint("Horizontal", 6, 2, 9, 2),
    Sketcher.Constraint("Horizontal", 10, 2, 13, 2),
    Sketcher.Constraint("Equal", 6, 10),
    Sketcher.Constraint("Equal", 2, 14),
    Sketcher.Constraint("Radius", 4, 3.0),
    Sketcher.Constraint("DistanceX", 6, 1, 6, 2, 264.0),
    Sketcher.Constraint("DistanceY", 1, 1, 1, 2, 80.0),
    Sketcher.Constraint("DistanceY", 3, 2, 3, 1, 9.5),
    Sketcher.Constraint("DistanceY", 0, 2, -1, 1, 61.0),
    Sketcher.Constraint("DistanceX", 0, 2, 0, 1, 603.83084),
])
pad10 = body6.newObject("PartDesign::Pad", "Pad009")
pad10.Profile = sketch13
pad10.Length = 2
pad10.Reversed = True

doc.recompute()
